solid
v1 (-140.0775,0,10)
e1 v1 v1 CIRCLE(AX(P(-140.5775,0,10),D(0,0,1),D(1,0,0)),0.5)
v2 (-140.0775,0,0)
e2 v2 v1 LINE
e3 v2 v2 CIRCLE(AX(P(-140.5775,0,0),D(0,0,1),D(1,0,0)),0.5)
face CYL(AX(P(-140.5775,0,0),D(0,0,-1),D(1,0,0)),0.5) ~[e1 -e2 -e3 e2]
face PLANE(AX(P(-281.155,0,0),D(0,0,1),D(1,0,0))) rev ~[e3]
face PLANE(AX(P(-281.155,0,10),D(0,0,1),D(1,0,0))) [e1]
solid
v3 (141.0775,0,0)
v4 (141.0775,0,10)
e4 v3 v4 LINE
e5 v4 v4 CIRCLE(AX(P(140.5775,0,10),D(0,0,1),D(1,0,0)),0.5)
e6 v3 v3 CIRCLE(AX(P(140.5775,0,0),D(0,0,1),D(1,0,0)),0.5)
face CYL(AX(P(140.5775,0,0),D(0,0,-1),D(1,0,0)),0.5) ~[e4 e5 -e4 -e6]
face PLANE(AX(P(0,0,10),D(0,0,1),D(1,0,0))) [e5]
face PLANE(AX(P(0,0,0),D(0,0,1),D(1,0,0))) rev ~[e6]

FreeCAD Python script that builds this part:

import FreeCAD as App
import Part
import Sketcher
Q = App.Units.Quantity

doc = App.newDocument("Part")
params = doc.addObject("Spreadsheet::Sheet", "Params")
for row, (alias, value) in enumerate([
    ("sketch1_diameter", "1 mm"),
    ("pad1_length", "10 mm"),
    ("linearpattern_pitch", "281.155 mm"),
], start=1):
    params.set(f"A{row}", alias)
    params.set(f"B{row}", "=" + value)
    params.setAlias(f"B{row}", alias)

body = doc.addObject("PartDesign::Body", "Body")
body.AllowCompound = True

# Sketch on XY plane
sketch1 = body.newObject("Sketcher::SketchObject", "Sketch")
sketch1.AttachmentSupport = (doc.getObject("XY_Plane"), [""])
sketch1.MapMode = "FlatFace"
sketch1.addGeometry(Part.Circle(App.Vector(140.5775, 0, 0), App.Vector(0, 0, 1), 0.5), False)
sketch1.addConstraint([
    Sketcher.Constraint("PointOnObject", 0, 3, -1),
    Sketcher.Constraint("Diameter", 0, Q("1 mm")),
    Sketcher.Constraint("DistanceX", -1, 1, 0, 3, Q("140.5775 mm")),
])
sketch1.setExpression("Constraints[1]", "Params.sketch1_diameter")
pad1 = body.newObject("PartDesign::Pad", "Pad")
pad1.Profile = sketch1
pad1.setExpression("Length", "Params.pad1_length")
doc.recompute()

linearpattern = body.newObject("PartDesign::LinearPattern", "LinearPattern")
linearpattern.Originals = [pad1]
linearpattern.Direction = (doc.getObject("X_Axis"), [""])
linearpattern.Mode = "offset"
linearpattern.setExpression("Offset", "Params.linearpattern_pitch")
linearpattern.Occurrences = 2
linearpattern.Reversed = True
body.Tip = linearpattern

doc.recompute()
